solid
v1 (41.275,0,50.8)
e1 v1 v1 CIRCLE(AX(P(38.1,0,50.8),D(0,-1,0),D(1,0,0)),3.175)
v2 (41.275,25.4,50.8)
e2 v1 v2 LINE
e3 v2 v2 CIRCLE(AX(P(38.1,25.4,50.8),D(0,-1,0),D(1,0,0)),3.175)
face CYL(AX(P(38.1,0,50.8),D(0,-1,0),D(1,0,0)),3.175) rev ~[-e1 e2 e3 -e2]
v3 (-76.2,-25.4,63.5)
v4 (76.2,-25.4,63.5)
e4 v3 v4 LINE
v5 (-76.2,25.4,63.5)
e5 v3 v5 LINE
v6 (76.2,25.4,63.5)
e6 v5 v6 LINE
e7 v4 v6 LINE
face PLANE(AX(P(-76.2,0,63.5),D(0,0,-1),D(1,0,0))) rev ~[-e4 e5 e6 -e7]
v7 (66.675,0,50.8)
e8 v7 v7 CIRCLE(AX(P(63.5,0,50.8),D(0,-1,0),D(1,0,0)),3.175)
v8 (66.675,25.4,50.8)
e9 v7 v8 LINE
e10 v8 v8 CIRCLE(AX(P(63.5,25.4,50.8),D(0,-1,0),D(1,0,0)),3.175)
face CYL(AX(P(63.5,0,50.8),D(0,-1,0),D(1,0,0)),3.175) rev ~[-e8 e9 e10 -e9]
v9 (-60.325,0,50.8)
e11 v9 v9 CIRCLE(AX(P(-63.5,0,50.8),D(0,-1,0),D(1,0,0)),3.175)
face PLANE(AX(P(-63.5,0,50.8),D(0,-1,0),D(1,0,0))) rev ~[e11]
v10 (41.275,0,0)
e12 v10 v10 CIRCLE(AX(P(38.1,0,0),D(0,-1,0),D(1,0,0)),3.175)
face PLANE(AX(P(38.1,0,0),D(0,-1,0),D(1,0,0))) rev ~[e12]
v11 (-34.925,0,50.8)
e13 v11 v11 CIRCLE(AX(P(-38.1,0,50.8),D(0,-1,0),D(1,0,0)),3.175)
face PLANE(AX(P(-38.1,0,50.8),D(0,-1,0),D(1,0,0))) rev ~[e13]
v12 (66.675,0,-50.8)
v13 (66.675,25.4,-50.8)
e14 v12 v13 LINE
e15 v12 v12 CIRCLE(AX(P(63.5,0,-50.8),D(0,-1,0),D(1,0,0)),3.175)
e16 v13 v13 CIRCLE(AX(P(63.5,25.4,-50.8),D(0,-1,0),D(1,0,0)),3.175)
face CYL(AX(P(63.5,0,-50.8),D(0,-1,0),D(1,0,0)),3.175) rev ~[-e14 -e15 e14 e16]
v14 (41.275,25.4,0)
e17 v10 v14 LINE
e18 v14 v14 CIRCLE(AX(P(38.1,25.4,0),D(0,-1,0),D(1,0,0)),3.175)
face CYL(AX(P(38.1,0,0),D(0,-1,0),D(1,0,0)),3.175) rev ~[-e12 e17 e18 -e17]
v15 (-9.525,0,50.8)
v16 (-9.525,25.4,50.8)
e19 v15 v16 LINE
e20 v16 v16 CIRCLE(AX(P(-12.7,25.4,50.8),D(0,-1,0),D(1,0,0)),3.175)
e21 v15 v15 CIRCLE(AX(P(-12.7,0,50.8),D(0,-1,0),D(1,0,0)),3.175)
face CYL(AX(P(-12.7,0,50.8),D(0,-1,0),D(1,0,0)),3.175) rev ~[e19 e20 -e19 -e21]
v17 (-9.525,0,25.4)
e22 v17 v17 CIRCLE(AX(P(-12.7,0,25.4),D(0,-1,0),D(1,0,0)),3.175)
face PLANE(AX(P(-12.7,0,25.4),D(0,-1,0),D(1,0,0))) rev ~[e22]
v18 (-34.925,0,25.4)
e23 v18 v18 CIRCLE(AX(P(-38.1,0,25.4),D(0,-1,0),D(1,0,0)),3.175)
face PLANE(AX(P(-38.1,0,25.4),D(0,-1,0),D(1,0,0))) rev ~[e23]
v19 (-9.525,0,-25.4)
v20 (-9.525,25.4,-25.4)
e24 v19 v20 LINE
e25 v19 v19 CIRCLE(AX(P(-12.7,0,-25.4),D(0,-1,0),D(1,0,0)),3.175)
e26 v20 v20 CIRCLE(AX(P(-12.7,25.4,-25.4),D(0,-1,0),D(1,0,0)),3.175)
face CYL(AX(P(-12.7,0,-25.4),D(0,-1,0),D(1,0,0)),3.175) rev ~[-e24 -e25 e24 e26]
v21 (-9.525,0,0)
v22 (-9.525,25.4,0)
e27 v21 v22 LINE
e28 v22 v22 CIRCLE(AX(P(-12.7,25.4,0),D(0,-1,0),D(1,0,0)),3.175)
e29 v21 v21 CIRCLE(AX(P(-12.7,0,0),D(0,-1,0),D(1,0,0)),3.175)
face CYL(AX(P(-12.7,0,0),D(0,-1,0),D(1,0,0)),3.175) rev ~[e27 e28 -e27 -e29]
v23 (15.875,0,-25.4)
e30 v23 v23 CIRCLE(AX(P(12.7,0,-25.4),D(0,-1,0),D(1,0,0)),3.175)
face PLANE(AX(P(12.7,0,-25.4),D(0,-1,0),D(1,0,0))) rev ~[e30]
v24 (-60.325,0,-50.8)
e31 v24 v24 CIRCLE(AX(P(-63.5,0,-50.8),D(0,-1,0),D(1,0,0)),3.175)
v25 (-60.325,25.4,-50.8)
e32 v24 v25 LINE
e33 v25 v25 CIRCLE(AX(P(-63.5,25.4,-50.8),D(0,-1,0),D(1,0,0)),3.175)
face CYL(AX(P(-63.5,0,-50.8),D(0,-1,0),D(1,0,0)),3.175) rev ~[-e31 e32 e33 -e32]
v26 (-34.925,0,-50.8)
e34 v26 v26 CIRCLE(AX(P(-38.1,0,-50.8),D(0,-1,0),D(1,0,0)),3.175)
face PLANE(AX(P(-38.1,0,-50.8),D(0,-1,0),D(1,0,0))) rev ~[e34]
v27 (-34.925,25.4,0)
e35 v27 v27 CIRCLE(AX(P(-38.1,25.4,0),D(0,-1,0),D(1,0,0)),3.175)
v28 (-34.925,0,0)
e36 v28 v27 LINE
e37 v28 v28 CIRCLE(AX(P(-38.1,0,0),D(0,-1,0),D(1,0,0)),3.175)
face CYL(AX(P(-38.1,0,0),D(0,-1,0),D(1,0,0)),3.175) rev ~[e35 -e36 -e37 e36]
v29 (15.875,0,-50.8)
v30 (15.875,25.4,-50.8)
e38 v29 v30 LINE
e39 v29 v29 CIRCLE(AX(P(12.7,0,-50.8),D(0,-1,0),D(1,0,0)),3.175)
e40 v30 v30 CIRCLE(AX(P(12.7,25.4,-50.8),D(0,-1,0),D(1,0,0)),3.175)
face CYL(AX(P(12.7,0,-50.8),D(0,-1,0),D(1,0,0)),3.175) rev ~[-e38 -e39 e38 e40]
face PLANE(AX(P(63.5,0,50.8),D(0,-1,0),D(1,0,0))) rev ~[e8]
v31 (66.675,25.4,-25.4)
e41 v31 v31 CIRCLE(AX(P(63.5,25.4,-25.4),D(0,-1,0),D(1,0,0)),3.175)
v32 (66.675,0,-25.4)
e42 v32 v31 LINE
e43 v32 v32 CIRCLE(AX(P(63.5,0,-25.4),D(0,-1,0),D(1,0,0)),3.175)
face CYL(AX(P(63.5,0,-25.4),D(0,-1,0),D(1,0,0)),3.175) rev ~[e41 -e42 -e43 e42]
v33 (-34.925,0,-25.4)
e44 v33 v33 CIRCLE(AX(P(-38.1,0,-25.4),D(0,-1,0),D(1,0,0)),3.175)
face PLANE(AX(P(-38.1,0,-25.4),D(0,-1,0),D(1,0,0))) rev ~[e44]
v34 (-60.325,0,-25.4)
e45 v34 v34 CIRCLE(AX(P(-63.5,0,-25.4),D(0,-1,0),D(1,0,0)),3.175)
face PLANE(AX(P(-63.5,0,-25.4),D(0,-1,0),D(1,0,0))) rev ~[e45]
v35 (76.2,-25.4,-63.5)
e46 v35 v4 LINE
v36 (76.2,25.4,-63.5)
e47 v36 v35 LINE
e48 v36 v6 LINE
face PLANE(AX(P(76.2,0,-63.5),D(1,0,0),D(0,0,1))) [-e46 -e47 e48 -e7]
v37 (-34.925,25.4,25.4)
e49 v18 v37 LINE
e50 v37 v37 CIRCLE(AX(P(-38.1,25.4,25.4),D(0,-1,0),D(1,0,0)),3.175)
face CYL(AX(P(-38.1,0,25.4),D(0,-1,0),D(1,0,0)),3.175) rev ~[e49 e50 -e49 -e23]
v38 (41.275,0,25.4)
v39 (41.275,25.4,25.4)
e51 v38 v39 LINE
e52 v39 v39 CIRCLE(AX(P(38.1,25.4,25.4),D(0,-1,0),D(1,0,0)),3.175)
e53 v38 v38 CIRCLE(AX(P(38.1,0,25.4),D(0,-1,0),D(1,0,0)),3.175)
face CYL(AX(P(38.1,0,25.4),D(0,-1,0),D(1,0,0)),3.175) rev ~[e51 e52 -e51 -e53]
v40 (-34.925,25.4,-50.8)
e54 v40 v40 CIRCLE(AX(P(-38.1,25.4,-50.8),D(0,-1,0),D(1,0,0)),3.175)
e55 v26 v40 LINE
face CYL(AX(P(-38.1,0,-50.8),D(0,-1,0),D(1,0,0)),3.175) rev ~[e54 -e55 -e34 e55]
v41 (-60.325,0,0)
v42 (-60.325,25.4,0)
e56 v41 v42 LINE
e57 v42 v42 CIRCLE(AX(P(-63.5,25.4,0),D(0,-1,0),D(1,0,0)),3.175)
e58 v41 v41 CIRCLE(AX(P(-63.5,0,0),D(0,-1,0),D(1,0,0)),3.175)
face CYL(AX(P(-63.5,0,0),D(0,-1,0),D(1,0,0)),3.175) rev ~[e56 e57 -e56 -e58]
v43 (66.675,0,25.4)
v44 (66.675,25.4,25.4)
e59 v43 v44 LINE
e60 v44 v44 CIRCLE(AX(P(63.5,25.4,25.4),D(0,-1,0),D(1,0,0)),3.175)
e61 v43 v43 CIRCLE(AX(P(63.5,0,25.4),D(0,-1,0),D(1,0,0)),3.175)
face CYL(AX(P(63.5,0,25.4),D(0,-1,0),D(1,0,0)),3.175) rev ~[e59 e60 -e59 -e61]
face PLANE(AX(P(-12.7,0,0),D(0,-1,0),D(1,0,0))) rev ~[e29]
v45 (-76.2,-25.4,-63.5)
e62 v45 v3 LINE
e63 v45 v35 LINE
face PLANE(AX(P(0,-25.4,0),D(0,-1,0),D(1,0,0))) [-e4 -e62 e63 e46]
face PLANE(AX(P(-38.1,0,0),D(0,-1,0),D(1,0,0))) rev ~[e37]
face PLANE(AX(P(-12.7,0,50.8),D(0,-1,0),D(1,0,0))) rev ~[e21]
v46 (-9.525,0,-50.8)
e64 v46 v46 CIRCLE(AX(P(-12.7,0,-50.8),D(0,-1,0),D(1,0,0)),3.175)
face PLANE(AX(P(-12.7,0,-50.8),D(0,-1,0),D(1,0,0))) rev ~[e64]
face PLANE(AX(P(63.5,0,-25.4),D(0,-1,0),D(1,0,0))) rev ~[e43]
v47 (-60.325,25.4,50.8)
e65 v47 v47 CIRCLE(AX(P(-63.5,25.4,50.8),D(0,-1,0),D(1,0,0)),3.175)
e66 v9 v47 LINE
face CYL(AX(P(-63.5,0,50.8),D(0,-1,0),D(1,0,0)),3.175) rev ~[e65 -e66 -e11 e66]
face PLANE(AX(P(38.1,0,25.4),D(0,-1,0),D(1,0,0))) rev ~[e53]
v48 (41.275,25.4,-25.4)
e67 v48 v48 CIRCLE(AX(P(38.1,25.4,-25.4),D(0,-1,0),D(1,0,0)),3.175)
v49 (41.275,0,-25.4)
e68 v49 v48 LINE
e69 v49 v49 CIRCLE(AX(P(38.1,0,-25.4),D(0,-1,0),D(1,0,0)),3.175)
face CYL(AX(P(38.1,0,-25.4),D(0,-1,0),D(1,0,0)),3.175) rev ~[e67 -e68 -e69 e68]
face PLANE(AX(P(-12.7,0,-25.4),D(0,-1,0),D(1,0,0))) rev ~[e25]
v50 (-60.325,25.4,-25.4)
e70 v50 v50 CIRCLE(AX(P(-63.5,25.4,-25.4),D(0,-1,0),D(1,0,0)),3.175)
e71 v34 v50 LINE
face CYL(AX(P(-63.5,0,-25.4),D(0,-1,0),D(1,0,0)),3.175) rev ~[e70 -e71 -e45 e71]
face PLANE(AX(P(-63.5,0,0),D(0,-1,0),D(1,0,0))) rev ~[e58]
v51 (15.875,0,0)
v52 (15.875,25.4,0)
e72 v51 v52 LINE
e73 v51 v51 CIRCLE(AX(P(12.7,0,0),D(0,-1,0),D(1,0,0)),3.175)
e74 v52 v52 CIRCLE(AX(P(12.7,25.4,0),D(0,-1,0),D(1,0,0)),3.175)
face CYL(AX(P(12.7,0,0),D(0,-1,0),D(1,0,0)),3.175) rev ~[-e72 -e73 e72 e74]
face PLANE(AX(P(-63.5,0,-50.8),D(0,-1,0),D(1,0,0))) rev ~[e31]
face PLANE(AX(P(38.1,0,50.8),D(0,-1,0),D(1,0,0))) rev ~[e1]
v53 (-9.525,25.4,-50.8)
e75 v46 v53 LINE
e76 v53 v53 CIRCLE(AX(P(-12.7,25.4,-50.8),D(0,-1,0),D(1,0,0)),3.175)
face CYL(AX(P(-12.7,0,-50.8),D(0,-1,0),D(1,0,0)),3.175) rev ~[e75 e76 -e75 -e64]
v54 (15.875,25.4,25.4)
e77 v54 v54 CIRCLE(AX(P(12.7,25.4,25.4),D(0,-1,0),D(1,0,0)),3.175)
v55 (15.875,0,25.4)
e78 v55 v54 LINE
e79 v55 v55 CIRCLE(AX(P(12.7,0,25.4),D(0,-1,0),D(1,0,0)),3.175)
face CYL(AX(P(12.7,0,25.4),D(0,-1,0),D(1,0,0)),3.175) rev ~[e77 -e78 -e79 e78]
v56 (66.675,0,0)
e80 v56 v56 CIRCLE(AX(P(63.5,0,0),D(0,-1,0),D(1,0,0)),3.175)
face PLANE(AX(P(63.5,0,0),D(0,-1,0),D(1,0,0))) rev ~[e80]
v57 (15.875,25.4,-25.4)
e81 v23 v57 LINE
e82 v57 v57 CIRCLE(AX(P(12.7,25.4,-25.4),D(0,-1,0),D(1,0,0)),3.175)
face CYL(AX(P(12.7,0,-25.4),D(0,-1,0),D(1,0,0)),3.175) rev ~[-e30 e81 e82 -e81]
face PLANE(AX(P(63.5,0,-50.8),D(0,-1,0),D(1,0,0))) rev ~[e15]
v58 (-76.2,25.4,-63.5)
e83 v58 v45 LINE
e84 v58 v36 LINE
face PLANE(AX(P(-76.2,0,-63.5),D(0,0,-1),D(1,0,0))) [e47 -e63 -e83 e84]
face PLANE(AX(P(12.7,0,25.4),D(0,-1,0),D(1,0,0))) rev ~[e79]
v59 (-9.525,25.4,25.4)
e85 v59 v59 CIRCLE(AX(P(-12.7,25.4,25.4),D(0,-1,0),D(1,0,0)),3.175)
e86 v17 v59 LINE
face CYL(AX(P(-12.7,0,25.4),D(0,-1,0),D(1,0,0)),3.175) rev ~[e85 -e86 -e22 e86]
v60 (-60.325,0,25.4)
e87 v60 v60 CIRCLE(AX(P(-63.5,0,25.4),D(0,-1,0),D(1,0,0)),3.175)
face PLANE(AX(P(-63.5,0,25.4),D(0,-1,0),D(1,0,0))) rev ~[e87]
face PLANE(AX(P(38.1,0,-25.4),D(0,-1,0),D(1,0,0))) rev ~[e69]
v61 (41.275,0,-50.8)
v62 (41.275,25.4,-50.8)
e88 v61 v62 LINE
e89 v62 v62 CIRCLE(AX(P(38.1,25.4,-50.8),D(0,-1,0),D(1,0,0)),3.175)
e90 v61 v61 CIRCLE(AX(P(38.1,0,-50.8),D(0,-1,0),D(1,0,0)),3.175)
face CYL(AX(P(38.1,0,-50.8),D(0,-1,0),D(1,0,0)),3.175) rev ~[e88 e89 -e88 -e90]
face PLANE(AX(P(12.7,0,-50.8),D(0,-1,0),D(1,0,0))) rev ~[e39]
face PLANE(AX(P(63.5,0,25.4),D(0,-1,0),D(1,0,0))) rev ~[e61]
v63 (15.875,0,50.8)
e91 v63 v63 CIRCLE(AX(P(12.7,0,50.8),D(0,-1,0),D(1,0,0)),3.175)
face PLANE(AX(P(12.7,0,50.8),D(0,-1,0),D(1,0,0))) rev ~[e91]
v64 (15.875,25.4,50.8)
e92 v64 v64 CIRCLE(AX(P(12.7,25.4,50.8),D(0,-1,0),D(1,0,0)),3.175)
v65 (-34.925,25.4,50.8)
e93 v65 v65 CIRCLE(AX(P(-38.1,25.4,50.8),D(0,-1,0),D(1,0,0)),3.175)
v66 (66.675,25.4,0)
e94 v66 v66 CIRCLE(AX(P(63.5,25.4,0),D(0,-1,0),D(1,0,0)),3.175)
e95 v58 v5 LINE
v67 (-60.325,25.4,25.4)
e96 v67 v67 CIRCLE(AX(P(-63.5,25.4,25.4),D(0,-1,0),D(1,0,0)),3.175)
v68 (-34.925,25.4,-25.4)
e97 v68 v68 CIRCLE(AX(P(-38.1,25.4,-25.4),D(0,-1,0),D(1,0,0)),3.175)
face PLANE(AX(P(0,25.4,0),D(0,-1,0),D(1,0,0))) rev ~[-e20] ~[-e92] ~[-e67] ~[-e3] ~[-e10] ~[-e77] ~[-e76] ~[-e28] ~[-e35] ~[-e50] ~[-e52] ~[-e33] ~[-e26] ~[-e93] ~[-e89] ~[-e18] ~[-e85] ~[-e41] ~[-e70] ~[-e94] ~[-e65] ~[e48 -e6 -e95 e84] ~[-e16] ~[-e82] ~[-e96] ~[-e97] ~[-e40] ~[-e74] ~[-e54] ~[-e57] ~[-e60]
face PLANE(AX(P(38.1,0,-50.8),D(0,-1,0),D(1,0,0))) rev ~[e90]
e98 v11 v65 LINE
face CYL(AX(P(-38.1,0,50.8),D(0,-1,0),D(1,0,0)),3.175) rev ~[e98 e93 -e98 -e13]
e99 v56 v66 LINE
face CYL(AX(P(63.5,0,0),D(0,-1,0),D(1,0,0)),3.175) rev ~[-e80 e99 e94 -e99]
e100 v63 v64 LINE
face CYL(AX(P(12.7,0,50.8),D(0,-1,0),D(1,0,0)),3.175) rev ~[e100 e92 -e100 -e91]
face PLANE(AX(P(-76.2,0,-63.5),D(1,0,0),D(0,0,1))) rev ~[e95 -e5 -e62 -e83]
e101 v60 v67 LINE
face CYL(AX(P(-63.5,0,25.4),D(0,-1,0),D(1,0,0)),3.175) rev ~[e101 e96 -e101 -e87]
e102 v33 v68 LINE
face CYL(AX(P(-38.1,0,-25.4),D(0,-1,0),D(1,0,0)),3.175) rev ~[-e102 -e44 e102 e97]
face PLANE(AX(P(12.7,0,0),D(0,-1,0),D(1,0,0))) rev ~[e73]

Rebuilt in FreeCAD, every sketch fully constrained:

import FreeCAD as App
import Part
import Sketcher
from FreeCAD import Vector
Q = App.Units.Quantity

doc = App.newDocument("Part")
body = doc.addObject("PartDesign::Body", "Body")

sketch1 = doc.addObject("Sketcher::SketchObject", "Sketch")
body.addObject(sketch1)
sketch1.AttachmentSupport = (doc.XZ_Plane, [""])
sketch1.MapMode = "FlatFace"
sketch1.addGeometry([
    Part.LineSegment(Vector(-76, 64, 0), Vector(-76, -64, 0)),
    Part.LineSegment(Vector(-76, -64, 0), Vector(76, -64, 0)),
    Part.LineSegment(Vector(76, -64, 0), Vector(76, 64, 0)),
    Part.LineSegment(Vector(76, 64, 0), Vector(-76, 64, 0)),
], False)
sketch1.addConstraint([
    Sketcher.Constraint("Coincident", 0, 2, 1, 1),
    Sketcher.Constraint("Coincident", 1, 2, 2, 1),
    Sketcher.Constraint("Coincident", 2, 2, 3, 1),
    Sketcher.Constraint("Coincident", 3, 2, 0, 1),
    Sketcher.Constraint("Vertical", 0),
    Sketcher.Constraint("Horizontal", 1),
    Sketcher.Constraint("Vertical", 2),
    Sketcher.Constraint("Horizontal", 3),
    Sketcher.Constraint("Symmetric", 0, 2, 2, 2, -1, 1),
    Sketcher.Constraint("DistanceX", 1, 1, 1, 2, Q("6 in")),
    Sketcher.Constraint("DistanceY", 0, 2, 0, 1, Q("5 in")),
])
pad1 = doc.addObject("PartDesign::Pad", "Pad")
body.addObject(pad1)
pad1.Profile = sketch1
pad1.Length = Q("2 in")
pad1.Midplane = True

sketch2 = doc.addObject("Sketcher::SketchObject", "Sketch001")
body.addObject(sketch2)
sketch2.AttachmentSupport = (doc.XZ_Plane, [""])
sketch2.MapMode = "FlatFace"
sketch2.addGeometry([
    Part.Circle(Vector(-63.5, -25.4, 0), Vector(0, 0, 1), 3.2),
    Part.Circle(Vector(-63.5, 50.8, 0), Vector(0, 0, 1), 3.2),
    Part.Circle(Vector(-38.1, 50.8, 0), Vector(0, 0, 1), 3.2),
    Part.Circle(Vector(-63.5, 25.4, 0), Vector(0, 0, 1), 3.2),
    Part.Circle(Vector(-38.1, 25.4, 0), Vector(0, 0, 1), 3.2),
    Part.Circle(Vector(-12.7, 50.8, 0), Vector(0, 0, 1), 3.2),
    Part.Circle(Vector(-12.7, 25.4, 0), Vector(0, 0, 1), 3.2),
    Part.Circle(Vector(12.7, 50.8, 0), Vector(0, 0, 1), 3.2),
    Part.Circle(Vector(38.1, 50.8, 0), Vector(0, 0, 1), 3.2),
    Part.Circle(Vector(63.5, 50.8, 0), Vector(0, 0, 1), 3.2),
    Part.Circle(Vector(63.5, 25.4, 0), Vector(0, 0, 1), 3.2),
    Part.Circle(Vector(38.1, 25.4, 0), Vector(0, 0, 1), 3.2),
    Part.Circle(Vector(12.7, 25.4, 0), Vector(0, 0, 1), 3.2),
    Part.Circle(Vector(-63.5, 0, 0), Vector(0, 0, 1), 3.2),
    Part.Circle(Vector(-38.1, 0, 0), Vector(0, 0, 1), 3.2),
    Part.Circle(Vector(-12.7, 0, 0), Vector(0, 0, 1), 3.2),
    Part.Circle(Vector(12.7, 0, 0), Vector(0, 0, 1), 3.2),
    Part.Circle(Vector(38.1, 0, 0), Vector(0, 0, 1), 3.2),
    Part.Circle(Vector(63.5, 0, 0), Vector(0, 0, 1), 3.2),
    Part.Circle(Vector(63.5, -25.4, 0), Vector(0, 0, 1), 3.2),
    Part.Circle(Vector(63.5, -50.8, 0), Vector(0, 0, 1), 3.2),
    Part.Circle(Vector(38.1, -50.8, 0), Vector(0, 0, 1), 3.2),
    Part.Circle(Vector(38.1, -25.4, 0), Vector(0, 0, 1), 3.2),
    Part.Circle(Vector(12.7, -25.4, 0), Vector(0, 0, 1), 3.2),
    Part.Circle(Vector(12.7, -50.8, 0), Vector(0, 0, 1), 3.2),
    Part.Circle(Vector(-12.7, -50.8, 0), Vector(0, 0, 1), 3.2),
    Part.Circle(Vector(-12.7, -25.4, 0), Vector(0, 0, 1), 3.2),
    Part.Circle(Vector(-38.1, -25.4, 0), Vector(0, 0, 1), 3.2),
    Part.Circle(Vector(-38.1, -50.8, 0), Vector(0, 0, 1), 3.2),
    Part.Circle(Vector(-63.5, -50.8, 0), Vector(0, 0, 1), 3.2),
], False)
sketch2.addConstraint([
    Sketcher.Constraint("Equal", 0, 1),
    Sketcher.Constraint("Equal", 1, 2),
    Sketcher.Constraint("Equal", 2, 3),
    Sketcher.Constraint("Equal", 3, 4),
    Sketcher.Constraint("Equal", 4, 5),
    Sketcher.Constraint("Equal", 5, 6),
    Sketcher.Constraint("Equal", 6, 7),
    Sketcher.Constraint("Equal", 7, 8),
    Sketcher.Constraint("Equal", 8, 9),
    Sketcher.Constraint("Equal", 9, 10),
    Sketcher.Constraint("Equal", 10, 11),
    Sketcher.Constraint("Equal", 11, 12),
    Sketcher.Constraint("Equal", 12, 13),
    Sketcher.Constraint("Equal", 13, 14),
    Sketcher.Constraint("Equal", 14, 15),
    Sketcher.Constraint("Equal", 15, 16),
    Sketcher.Constraint("Equal", 16, 17),
    Sketcher.Constraint("Equal", 17, 18),
    Sketcher.Constraint("Equal", 18, 19),
    Sketcher.Constraint("Equal", 19, 20),
    Sketcher.Constraint("Equal", 20, 21),
    Sketcher.Constraint("Equal", 21, 22),
    Sketcher.Constraint("Equal", 22, 23),
    Sketcher.Constraint("Equal", 23, 24),
    Sketcher.Constraint("Equal", 24, 25),
    Sketcher.Constraint("Equal", 25, 26),
    Sketcher.Constraint("Equal", 26, 27),
    Sketcher.Constraint("Equal", 27, 28),
    Sketcher.Constraint("Equal", 28, 29),
    Sketcher.Constraint("Symmetric", 0, 3, 10, 3, -1, 1),
    Sketcher.Constraint("Symmetric", 15, 3, 16, 3, -1, 1),
    Sketcher.Constraint("Symmetric", 14, 3, 17, 3, -1, 1),
    Sketcher.Constraint("Symmetric", 13, 3, 18, 3, -1, 1),
    Sketcher.Constraint("Symmetric", 3, 3, 19, 3, -1, 1),
    Sketcher.Constraint("Symmetric", 1, 3, 20, 3, -1, 1),
    Sketcher.Constraint("Symmetric", 2, 3, 21, 3, -1, 1),
    Sketcher.Constraint("Symmetric", 4, 3, 22, 3, -1, 1),
    Sketcher.Constraint("Symmetric", 6, 3, 23, 3, -1, 1),
    Sketcher.Constraint("Symmetric", 5, 3, 24, 3, -1, 1),
    Sketcher.Constraint("Symmetric", 7, 3, 25, 3, -1, 1),
    Sketcher.Constraint("Symmetric", 12, 3, 26, 3, -1, 1),
    Sketcher.Constraint("Symmetric", 11, 3, 27, 3, -1, 1),
    Sketcher.Constraint("Symmetric", 8, 3, 28, 3, -1, 1),
    Sketcher.Constraint("Symmetric", 9, 3, 29, 3, -1, 1),
    Sketcher.Constraint("Symmetric", 5, 3, 7, 3, -2),
    Sketcher.Constraint("Symmetric", 2, 3, 8, 3, -2),
    Sketcher.Constraint("Symmetric", 1, 3, 9, 3, -2),
    Sketcher.Constraint("Symmetric", 3, 3, 10, 3, -2),
    Sketcher.Constraint("Symmetric", 4, 3, 11, 3, -2),
    Sketcher.Constraint("Symmetric", 6, 3, 12, 3, -2),
    Sketcher.Constraint("PointOnObject", 13, 3, -1),
    Sketcher.Constraint("PointOnObject", 14, 3, -1),
    Sketcher.Constraint("PointOnObject", 15, 3, -1),
    Sketcher.Constraint("Horizontal", 1, 3, 2, 3),
    Sketcher.Constraint("Horizontal", 3, 3, 4, 3),
    Sketcher.Constraint("Horizontal", 2, 3, 5, 3),
    Sketcher.Constraint("Horizontal", 4, 3, 6, 3),
    Sketcher.Constraint("Vertical", 0, 3, 1, 3),
    Sketcher.Constraint("Vertical", 2, 3, 4, 3),
    Sketcher.Constraint("Vertical", 5, 3, 6, 3),
    Sketcher.Constraint("Vertical", 3, 3, 13, 3),
    Sketcher.Constraint("Vertical", 4, 3, 14, 3),
    Sketcher.Constraint("Vertical", 6, 3, 15, 3),
    Sketcher.Constraint("Diameter", 0, Q("0.25 in")),
    Sketcher.Constraint("DistanceY", 0, 3, -1, 1, Q("1 in")),
    Sketcher.Constraint("DistanceY", -1, 1, 1, 3, Q("2 in")),
    Sketcher.Constraint("DistanceX", 1, 3, 2, 3, Q("1 in")),
    Sketcher.Constraint("DistanceX", 2, 3, 5, 3, Q("1 in")),
    Sketcher.Constraint("DistanceX", 5, 3, 7, 3, Q("1 in")),
])
pocket1 = doc.addObject("PartDesign::Pocket", "Pocket")
body.addObject(pocket1)
pocket1.Profile = sketch2
pocket1.Type = "ThroughAll"

doc.recompute()
